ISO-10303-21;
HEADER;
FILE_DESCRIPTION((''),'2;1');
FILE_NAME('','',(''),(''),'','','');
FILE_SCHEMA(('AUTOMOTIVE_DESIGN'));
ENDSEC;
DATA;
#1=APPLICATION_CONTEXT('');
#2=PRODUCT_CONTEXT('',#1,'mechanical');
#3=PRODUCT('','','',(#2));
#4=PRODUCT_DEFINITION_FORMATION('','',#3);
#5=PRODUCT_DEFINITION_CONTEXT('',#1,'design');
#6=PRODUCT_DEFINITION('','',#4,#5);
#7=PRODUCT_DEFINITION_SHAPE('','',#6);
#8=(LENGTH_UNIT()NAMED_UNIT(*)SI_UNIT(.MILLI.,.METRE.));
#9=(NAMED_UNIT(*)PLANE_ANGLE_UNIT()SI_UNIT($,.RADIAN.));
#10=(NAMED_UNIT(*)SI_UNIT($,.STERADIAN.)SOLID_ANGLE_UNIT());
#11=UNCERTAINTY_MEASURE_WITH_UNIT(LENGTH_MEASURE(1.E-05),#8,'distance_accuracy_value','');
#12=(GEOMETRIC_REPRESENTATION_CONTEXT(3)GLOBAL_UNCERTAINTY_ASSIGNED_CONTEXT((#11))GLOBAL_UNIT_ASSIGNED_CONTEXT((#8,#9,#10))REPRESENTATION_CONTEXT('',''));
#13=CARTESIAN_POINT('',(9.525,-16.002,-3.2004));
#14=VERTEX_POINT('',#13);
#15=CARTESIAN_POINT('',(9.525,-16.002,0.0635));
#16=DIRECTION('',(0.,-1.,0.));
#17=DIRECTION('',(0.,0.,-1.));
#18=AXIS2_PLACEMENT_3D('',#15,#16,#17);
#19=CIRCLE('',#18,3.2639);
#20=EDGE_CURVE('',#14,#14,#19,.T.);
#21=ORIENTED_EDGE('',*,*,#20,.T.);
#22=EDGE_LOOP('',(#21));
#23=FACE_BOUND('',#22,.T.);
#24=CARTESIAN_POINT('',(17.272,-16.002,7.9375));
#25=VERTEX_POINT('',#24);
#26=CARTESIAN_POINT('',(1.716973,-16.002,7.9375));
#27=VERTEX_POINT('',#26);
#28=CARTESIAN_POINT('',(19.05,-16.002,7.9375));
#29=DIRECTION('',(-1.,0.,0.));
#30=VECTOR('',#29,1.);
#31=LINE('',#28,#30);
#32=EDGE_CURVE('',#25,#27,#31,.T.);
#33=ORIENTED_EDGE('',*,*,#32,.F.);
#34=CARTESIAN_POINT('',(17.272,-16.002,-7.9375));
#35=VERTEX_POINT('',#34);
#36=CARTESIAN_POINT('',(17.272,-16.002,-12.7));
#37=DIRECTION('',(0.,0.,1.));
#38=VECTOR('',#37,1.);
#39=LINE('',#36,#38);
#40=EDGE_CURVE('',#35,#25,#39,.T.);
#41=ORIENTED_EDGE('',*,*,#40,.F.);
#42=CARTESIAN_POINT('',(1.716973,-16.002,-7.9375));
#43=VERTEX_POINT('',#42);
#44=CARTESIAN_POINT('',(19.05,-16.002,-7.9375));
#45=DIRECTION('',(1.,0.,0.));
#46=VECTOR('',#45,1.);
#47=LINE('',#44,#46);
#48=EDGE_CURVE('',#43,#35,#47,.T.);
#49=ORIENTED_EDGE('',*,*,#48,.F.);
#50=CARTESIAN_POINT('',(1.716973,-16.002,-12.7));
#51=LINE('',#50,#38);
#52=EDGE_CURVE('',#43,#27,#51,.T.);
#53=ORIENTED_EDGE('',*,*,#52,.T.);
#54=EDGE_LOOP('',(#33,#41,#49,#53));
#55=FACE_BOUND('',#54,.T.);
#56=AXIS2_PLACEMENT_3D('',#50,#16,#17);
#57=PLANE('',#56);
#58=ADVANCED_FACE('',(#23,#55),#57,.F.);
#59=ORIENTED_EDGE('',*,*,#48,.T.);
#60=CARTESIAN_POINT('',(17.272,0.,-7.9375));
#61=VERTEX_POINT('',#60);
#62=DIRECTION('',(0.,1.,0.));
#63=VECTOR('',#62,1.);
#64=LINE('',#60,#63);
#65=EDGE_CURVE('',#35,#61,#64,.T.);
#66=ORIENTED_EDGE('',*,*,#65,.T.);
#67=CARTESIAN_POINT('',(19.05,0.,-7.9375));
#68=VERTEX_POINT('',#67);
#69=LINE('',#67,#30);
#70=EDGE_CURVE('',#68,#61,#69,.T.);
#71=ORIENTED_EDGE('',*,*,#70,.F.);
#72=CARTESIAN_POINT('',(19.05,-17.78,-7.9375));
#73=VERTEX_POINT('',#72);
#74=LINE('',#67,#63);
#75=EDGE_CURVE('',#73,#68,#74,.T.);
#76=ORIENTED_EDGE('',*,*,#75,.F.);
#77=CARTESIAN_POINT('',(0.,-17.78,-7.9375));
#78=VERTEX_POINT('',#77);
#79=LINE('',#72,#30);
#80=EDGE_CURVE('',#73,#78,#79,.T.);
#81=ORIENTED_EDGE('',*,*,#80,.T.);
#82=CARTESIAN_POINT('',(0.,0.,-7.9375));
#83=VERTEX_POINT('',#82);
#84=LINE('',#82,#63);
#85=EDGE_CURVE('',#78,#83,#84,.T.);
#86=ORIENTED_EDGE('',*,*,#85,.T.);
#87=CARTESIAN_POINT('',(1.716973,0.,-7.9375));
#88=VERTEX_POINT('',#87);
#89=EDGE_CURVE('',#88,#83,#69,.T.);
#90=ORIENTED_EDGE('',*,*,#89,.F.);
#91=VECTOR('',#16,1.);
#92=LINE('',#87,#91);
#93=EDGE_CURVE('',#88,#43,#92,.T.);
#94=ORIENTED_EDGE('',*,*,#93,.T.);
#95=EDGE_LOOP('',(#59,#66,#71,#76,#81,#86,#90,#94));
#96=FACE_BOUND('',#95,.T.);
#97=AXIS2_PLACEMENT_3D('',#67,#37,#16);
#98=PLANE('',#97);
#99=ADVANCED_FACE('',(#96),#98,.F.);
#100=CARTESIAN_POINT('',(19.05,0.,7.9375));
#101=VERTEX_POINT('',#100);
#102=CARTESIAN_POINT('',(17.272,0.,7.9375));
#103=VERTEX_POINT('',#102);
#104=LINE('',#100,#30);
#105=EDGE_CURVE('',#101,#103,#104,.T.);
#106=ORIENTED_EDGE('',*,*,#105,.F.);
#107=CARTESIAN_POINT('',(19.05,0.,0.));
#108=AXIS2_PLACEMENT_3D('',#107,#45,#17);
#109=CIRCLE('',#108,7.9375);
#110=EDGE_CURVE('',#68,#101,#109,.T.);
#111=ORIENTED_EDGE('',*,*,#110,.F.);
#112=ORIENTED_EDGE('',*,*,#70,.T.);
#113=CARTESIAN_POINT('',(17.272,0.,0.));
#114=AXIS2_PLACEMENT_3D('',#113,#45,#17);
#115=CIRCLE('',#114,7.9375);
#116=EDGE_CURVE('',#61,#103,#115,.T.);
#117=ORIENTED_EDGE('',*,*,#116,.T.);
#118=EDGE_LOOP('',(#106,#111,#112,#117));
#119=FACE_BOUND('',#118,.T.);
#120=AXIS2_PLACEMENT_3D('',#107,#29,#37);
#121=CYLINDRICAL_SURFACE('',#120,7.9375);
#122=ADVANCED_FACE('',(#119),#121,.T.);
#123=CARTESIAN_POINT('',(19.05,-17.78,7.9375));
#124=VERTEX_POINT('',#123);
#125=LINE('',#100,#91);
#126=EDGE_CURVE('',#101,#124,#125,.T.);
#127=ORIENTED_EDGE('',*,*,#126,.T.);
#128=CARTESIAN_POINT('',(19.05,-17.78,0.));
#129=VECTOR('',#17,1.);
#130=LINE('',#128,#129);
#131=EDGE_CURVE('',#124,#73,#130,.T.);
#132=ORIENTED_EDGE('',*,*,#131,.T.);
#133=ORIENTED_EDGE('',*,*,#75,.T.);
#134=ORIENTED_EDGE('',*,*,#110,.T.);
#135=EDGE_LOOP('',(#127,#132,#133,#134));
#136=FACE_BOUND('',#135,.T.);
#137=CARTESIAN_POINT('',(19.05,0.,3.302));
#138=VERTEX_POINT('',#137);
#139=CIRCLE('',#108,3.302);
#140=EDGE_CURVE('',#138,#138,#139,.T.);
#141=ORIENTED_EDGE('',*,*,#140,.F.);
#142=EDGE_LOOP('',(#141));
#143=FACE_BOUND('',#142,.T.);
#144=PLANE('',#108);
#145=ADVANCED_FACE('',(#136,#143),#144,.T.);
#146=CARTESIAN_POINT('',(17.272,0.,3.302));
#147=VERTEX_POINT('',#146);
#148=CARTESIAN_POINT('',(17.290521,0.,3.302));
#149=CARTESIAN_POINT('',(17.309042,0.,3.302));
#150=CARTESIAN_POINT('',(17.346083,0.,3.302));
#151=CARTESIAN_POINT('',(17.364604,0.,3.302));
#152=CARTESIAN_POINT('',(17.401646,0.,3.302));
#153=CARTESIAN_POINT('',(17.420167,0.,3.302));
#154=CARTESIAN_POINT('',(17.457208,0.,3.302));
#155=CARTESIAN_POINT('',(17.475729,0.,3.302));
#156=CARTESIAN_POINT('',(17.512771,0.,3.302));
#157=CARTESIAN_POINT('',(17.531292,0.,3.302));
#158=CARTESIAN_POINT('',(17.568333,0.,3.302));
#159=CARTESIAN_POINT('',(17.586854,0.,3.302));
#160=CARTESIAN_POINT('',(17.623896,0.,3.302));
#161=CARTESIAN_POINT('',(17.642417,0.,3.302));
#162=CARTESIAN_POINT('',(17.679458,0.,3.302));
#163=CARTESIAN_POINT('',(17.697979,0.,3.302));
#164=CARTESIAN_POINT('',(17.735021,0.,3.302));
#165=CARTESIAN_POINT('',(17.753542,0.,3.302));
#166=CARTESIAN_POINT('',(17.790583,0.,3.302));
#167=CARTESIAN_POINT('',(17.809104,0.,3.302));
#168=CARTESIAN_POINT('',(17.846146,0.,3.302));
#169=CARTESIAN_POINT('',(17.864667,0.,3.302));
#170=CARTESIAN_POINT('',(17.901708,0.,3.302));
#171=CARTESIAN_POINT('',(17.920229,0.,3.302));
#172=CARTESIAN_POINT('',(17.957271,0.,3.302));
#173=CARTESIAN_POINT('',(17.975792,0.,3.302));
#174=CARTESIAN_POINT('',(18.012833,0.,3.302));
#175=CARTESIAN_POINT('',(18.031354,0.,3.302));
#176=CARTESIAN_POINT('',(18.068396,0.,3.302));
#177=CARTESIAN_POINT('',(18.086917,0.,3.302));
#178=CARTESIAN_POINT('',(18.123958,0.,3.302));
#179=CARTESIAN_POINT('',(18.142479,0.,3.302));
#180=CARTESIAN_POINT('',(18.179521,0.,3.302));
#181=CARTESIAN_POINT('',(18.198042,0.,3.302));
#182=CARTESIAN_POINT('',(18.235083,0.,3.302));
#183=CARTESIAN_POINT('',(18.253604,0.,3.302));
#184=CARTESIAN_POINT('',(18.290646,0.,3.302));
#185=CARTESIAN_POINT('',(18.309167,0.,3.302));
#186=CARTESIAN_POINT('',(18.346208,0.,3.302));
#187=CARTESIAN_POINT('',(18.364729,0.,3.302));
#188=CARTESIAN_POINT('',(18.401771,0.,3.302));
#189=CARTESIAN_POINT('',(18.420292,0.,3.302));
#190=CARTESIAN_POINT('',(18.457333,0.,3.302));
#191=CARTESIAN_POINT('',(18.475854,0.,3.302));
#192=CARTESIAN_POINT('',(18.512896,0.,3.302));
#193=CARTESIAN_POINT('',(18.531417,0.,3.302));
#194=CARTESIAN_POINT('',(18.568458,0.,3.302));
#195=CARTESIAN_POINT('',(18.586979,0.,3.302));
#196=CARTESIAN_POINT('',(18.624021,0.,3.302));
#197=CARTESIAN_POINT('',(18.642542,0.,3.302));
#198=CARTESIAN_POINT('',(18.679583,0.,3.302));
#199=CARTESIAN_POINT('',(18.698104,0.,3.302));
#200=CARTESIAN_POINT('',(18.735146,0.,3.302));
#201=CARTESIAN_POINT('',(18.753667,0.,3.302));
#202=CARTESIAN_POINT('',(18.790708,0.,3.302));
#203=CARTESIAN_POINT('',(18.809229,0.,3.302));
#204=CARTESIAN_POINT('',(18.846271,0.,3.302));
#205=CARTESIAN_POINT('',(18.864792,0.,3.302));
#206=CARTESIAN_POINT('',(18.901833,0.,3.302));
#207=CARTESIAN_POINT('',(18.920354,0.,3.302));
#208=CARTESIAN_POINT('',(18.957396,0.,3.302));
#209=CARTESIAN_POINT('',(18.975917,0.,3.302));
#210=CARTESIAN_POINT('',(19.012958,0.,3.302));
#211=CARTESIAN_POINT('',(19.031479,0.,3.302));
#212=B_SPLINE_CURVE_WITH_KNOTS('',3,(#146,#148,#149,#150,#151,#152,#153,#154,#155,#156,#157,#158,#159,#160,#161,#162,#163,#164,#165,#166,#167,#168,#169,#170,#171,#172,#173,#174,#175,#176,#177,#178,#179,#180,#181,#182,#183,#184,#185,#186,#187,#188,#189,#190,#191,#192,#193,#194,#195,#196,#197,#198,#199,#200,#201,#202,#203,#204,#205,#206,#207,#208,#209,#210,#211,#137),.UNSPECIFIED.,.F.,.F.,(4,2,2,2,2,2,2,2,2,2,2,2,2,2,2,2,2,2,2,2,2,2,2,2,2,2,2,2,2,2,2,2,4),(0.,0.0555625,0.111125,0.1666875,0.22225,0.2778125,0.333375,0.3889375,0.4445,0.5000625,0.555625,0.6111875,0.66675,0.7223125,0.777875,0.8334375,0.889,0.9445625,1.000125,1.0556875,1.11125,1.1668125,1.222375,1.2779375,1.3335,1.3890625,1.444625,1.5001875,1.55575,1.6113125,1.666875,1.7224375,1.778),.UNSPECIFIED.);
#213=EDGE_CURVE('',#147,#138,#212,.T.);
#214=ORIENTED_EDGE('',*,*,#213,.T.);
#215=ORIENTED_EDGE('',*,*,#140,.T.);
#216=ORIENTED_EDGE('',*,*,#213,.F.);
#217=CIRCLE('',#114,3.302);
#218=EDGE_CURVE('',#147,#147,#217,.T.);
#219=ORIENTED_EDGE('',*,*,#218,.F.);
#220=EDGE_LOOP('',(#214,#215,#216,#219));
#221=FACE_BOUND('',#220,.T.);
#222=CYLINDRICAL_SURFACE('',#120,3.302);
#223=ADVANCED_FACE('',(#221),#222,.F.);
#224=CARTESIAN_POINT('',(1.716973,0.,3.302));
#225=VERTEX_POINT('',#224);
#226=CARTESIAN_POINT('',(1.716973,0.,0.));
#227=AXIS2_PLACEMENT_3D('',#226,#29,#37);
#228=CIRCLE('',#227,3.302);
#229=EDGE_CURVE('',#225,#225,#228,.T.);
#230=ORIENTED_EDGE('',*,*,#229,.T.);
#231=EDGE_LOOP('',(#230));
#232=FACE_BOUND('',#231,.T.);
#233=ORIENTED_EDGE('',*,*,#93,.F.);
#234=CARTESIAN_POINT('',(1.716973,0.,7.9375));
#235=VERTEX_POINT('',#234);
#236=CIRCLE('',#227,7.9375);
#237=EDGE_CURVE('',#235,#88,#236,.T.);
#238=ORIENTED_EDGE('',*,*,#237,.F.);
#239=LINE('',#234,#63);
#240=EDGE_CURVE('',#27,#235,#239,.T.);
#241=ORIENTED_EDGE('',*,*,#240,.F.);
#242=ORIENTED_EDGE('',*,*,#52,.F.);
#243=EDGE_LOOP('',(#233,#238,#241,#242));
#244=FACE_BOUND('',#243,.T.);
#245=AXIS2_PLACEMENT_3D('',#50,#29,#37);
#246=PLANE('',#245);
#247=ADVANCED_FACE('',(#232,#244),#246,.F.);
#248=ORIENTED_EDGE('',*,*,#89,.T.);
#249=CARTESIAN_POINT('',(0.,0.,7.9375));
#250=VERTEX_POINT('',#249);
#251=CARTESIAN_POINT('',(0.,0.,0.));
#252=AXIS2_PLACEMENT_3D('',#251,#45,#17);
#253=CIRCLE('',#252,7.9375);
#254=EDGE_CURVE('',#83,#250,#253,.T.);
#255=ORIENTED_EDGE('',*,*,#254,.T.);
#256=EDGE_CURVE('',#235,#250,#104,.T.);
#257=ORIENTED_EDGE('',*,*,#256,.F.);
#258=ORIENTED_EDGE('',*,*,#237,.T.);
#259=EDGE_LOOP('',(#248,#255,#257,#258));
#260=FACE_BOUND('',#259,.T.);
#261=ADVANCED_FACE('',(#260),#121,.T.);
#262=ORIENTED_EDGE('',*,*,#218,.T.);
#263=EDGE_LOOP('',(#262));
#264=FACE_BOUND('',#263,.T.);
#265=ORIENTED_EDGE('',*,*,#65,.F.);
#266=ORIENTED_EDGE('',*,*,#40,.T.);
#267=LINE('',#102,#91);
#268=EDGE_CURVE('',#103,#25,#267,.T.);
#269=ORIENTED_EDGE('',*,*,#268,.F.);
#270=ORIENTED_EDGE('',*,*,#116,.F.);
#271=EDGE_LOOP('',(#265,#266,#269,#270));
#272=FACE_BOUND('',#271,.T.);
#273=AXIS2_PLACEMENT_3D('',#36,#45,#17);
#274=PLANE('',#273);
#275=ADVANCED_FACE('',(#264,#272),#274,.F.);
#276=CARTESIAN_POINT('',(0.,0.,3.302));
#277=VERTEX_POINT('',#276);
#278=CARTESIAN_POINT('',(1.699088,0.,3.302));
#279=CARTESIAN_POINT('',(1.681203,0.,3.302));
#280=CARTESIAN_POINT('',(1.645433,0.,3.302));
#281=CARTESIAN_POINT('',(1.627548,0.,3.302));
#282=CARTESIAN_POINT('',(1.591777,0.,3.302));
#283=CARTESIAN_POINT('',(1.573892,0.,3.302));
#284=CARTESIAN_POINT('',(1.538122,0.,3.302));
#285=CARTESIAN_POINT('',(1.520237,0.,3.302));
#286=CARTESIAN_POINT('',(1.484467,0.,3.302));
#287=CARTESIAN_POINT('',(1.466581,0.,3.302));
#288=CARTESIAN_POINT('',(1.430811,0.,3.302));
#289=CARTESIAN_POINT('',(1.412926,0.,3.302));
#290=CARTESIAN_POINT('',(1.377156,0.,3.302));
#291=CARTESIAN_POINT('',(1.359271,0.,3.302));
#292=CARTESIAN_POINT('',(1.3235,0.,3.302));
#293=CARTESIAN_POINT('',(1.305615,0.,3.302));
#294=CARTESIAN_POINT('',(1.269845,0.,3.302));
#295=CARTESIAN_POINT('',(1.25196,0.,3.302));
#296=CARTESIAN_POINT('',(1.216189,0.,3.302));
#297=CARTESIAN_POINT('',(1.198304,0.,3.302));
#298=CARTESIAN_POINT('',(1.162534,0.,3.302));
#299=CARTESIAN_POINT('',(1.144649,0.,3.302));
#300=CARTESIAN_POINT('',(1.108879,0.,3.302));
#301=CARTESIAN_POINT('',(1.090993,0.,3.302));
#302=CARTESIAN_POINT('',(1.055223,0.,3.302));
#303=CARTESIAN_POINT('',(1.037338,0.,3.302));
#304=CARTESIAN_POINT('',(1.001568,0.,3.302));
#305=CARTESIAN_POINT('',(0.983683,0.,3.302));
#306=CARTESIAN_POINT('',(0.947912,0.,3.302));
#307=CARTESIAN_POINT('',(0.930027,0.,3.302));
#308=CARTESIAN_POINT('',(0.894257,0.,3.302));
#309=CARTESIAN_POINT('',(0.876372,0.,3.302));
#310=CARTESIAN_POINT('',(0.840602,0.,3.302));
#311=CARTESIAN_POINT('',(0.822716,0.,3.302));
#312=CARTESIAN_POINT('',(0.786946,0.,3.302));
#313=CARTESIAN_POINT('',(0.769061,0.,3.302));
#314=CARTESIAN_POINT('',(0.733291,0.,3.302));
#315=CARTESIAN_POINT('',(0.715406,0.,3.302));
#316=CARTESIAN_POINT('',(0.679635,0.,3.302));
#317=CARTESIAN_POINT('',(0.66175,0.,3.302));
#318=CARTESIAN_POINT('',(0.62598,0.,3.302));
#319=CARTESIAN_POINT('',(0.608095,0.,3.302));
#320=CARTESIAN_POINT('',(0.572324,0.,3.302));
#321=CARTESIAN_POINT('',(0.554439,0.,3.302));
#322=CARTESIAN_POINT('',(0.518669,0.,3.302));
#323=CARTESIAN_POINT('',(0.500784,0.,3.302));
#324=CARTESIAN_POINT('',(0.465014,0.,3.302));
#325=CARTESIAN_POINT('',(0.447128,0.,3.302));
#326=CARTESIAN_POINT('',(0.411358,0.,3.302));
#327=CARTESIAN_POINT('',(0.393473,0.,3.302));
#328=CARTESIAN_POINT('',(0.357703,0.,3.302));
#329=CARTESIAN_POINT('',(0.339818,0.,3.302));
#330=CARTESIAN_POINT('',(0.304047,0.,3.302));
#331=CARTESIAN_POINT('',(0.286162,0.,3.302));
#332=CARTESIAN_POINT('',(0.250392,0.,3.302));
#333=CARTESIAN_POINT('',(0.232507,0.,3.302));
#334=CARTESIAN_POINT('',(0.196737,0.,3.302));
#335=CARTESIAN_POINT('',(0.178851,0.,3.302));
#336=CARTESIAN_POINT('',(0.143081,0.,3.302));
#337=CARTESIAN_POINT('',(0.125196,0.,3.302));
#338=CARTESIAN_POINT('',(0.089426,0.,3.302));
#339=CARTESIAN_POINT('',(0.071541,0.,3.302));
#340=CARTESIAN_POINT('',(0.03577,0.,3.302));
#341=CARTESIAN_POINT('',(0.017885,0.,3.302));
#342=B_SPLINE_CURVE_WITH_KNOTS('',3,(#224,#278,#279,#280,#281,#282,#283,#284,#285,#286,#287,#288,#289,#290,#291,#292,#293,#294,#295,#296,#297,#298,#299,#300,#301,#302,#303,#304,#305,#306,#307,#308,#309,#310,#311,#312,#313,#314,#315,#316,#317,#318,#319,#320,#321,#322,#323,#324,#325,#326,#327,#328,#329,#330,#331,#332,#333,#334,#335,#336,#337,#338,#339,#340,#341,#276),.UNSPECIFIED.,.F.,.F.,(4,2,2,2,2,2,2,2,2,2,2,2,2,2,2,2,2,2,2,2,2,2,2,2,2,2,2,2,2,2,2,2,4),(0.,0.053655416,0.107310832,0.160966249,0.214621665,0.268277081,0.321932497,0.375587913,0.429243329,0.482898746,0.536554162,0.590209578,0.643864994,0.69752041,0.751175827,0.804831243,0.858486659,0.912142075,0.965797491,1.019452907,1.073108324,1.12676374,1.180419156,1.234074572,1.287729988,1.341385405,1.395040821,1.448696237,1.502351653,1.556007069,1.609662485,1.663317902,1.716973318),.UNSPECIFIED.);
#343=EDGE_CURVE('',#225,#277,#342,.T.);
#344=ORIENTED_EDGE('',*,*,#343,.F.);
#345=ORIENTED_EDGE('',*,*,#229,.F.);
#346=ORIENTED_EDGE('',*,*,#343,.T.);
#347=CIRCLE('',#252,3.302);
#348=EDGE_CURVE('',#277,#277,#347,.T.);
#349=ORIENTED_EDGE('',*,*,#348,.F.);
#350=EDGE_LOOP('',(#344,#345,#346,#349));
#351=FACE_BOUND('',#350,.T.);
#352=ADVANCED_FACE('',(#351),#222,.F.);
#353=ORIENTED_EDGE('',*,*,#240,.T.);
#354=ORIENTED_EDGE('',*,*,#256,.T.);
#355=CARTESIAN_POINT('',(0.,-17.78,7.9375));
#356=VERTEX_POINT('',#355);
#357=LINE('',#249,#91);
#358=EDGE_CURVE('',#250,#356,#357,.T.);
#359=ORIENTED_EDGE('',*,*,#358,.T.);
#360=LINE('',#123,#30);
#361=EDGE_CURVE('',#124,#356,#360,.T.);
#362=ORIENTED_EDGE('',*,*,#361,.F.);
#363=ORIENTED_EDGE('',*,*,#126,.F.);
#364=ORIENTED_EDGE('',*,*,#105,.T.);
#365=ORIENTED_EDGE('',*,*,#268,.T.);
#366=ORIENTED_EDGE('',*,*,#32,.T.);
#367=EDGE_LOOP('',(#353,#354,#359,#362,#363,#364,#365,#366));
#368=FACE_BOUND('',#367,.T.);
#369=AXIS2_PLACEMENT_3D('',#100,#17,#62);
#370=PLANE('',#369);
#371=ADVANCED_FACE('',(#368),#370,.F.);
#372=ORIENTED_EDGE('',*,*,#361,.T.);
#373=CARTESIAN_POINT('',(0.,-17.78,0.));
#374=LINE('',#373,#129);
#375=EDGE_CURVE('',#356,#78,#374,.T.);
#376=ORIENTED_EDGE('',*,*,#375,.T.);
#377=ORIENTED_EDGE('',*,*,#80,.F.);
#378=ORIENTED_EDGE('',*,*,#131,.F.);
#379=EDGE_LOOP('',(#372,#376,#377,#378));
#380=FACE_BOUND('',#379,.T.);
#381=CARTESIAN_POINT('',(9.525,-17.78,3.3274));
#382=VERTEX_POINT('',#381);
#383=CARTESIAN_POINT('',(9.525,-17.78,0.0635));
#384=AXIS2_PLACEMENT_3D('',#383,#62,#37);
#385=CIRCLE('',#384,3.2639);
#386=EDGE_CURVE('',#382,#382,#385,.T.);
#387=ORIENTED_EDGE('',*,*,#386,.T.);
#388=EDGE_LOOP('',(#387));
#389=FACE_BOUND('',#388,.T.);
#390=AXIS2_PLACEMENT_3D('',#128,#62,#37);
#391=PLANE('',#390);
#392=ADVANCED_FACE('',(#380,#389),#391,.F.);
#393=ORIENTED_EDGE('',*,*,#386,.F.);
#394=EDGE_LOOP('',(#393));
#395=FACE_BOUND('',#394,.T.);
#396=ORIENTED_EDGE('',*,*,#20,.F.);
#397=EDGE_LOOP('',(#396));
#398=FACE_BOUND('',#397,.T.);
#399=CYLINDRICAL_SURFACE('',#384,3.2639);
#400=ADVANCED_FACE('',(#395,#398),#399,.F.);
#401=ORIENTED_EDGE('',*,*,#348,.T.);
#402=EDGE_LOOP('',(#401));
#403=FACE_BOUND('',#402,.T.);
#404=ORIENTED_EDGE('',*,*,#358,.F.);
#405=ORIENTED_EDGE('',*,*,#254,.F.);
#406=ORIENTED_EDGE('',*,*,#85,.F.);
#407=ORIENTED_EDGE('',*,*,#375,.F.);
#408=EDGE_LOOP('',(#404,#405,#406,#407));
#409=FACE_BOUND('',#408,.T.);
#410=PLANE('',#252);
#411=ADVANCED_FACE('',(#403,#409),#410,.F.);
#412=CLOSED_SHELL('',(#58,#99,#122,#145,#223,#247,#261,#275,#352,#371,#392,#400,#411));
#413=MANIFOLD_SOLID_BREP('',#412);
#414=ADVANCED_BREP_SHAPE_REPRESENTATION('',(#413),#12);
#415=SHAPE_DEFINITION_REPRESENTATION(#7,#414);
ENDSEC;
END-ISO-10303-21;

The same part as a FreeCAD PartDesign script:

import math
import FreeCAD as App
import Part
import Sketcher
Q = App.Units.Quantity

doc = App.newDocument("Part")
params = doc.addObject("Spreadsheet::Sheet", "Params")
for row, (alias, value) in enumerate([
    ("sketch1_diameter", "0.26 in"),
    ("sketch1_width", "0.7 in"),
    ("sketch1_radius", "0.3125 in"),
    ("pad1_length", "0.75 in"),
    ("sketch2_height", "1 in"),
    ("pocket1_length", "1 in"),
    ("sketch3_diameter", "0.257 in"),
], start=1):
    params.set(f"A{row}", alias)
    params.set(f"B{row}", "=" + value)
    params.setAlias(f"B{row}", alias)

body = doc.addObject("PartDesign::Body", "Body")

# Sketch on YZ plane
sketch1 = body.newObject("Sketcher::SketchObject", "Sketch")
sketch1.AttachmentSupport = (doc.getObject("YZ_Plane"), [""])
sketch1.MapMode = "FlatFace"
sketch1.addGeometry(Part.LineSegment(App.Vector(0, 7.9, 0), App.Vector(-17.8, 7.9, 0)), False)
sketch1.addGeometry(Part.LineSegment(App.Vector(-17.8, 7.9, 0), App.Vector(-17.8, -7.9, 0)), False)
sketch1.addGeometry(Part.LineSegment(App.Vector(-17.8, -7.9, 0), App.Vector(0, -7.9, 0)), False)
sketch1.addGeometry(Part.ArcOfCircle(Part.Circle(App.Vector(0, 0, 0), App.Vector(0, 0, 1), 7.9), math.radians(-90), math.radians(90)), False)
sketch1.addGeometry(Part.Circle(App.Vector(0, 0, 0), App.Vector(0, 0, 1), 3.3), False)
sketch1.addConstraint(Sketcher.Constraint("Coincident", 0, 2, 1, 1))
sketch1.addConstraint(Sketcher.Constraint("Coincident", 1, 2, 2, 1))
sketch1.addConstraint(Sketcher.Constraint("Tangent", 2, 2, 3, 1))
sketch1.addConstraint(Sketcher.Constraint("Tangent", 3, 2, 0, 1))
sketch1.addConstraint(Sketcher.Constraint("Horizontal", 0))
sketch1.addConstraint(Sketcher.Constraint("Vertical", 1))
sketch1.addConstraint(Sketcher.Constraint("Horizontal", 2))
sketch1.addConstraint(Sketcher.Constraint("Coincident", 3, 3, -1, 1))
sketch1.addConstraint(Sketcher.Constraint("Coincident", 4, 3, -1, 1))
sketch1.addConstraint(Sketcher.Constraint("Diameter", 4, Q("0.26 in")))
sketch1.addConstraint(Sketcher.Constraint("DistanceX", 0, 2, 0, 1, Q("0.7 in")))
sketch1.addConstraint(Sketcher.Constraint("Radius", 3, Q("0.3125 in")))
sketch1.setExpression("Constraints[9]", "Params.sketch1_diameter")
sketch1.setExpression("Constraints[10]", "Params.sketch1_width")
sketch1.setExpression("Constraints[11]", "Params.sketch1_radius")
pad1 = body.newObject("PartDesign::Pad", "Pad")
pad1.Profile = sketch1
pad1.setExpression("Length", "Params.pad1_length")

# Sketch on XY plane
sketch2 = body.newObject("Sketcher::SketchObject", "Sketch001")
sketch2.AttachmentSupport = (doc.getObject("XY_Plane"), [""])
sketch2.MapMode = "FlatFace"
sketch2.addGeometry(Part.LineSegment(App.Vector(2, 9, 0), App.Vector(2, -16, 0)), False)
sketch2.addGeometry(Part.LineSegment(App.Vector(2, -16, 0), App.Vector(17, -16, 0)), False)
sketch2.addGeometry(Part.LineSegment(App.Vector(17, -16, 0), App.Vector(17, 9, 0)), False)
sketch2.addGeometry(Part.LineSegment(App.Vector(17, 9, 0), App.Vector(2, 9, 0)), False)
sketch2.addConstraint(Sketcher.Constraint("Coincident", 0, 2, 1, 1))
sketch2.addConstraint(Sketcher.Constraint("Coincident", 1, 2, 2, 1))
sketch2.addConstraint(Sketcher.Constraint("Coincident", 2, 2, 3, 1))
sketch2.addConstraint(Sketcher.Constraint("Coincident", 3, 2, 0, 1))
sketch2.addConstraint(Sketcher.Constraint("Vertical", 0))
sketch2.addConstraint(Sketcher.Constraint("Horizontal", 1))
sketch2.addConstraint(Sketcher.Constraint("Vertical", 2))
sketch2.addConstraint(Sketcher.Constraint("Horizontal", 3))
sketch2.addConstraint(Sketcher.Constraint("DistanceY", 0, 2, 0, 1, Q("1 in")))
sketch2.addConstraint(Sketcher.Constraint("DistanceY", 0, 2, -1, 1, Q("0.63 in")))
sketch2.addConstraint(Sketcher.Constraint("DistanceX", -1, 1, 1, 2, Q("0.68 in")))
sketch2.addConstraint(Sketcher.Constraint("DistanceX", 1, 1, 1, 2, 15.555027))
sketch2.setExpression("Constraints[8]", "Params.sketch2_height")
pocket1 = body.newObject("PartDesign::Pocket", "Pocket")
pocket1.Profile = sketch2
pocket1.setExpression("Length", "Params.pocket1_length")
pocket1.Midplane = True

# Sketch on XZ plane
sketch3 = body.newObject("Sketcher::SketchObject", "Sketch002")
sketch3.AttachmentSupport = (doc.getObject("XZ_Plane"), [""])
sketch3.MapMode = "FlatFace"
sketch3.addGeometry(Part.Circle(App.Vector(9.5, 0.1, 0), App.Vector(0, 0, 1), 3.3), False)
sketch3.addConstraint(Sketcher.Constraint("Diameter", 0, Q("0.257 in")))
sketch3.addConstraint(Sketcher.Constraint("DistanceX", -1, 1, 0, 3, Q("0.375 in")))
sketch3.addConstraint(Sketcher.Constraint("DistanceY", -1, 1, 0, 3, Q("0.0025 in")))
sketch3.setExpression("Constraints[0]", "Params.sketch3_diameter")
pocket2 = body.newObject("PartDesign::Pocket", "Pocket001")
pocket2.Profile = sketch3
pocket2.Type = "ThroughAll"
pocket2.Reversed = True

doc.recompute()
